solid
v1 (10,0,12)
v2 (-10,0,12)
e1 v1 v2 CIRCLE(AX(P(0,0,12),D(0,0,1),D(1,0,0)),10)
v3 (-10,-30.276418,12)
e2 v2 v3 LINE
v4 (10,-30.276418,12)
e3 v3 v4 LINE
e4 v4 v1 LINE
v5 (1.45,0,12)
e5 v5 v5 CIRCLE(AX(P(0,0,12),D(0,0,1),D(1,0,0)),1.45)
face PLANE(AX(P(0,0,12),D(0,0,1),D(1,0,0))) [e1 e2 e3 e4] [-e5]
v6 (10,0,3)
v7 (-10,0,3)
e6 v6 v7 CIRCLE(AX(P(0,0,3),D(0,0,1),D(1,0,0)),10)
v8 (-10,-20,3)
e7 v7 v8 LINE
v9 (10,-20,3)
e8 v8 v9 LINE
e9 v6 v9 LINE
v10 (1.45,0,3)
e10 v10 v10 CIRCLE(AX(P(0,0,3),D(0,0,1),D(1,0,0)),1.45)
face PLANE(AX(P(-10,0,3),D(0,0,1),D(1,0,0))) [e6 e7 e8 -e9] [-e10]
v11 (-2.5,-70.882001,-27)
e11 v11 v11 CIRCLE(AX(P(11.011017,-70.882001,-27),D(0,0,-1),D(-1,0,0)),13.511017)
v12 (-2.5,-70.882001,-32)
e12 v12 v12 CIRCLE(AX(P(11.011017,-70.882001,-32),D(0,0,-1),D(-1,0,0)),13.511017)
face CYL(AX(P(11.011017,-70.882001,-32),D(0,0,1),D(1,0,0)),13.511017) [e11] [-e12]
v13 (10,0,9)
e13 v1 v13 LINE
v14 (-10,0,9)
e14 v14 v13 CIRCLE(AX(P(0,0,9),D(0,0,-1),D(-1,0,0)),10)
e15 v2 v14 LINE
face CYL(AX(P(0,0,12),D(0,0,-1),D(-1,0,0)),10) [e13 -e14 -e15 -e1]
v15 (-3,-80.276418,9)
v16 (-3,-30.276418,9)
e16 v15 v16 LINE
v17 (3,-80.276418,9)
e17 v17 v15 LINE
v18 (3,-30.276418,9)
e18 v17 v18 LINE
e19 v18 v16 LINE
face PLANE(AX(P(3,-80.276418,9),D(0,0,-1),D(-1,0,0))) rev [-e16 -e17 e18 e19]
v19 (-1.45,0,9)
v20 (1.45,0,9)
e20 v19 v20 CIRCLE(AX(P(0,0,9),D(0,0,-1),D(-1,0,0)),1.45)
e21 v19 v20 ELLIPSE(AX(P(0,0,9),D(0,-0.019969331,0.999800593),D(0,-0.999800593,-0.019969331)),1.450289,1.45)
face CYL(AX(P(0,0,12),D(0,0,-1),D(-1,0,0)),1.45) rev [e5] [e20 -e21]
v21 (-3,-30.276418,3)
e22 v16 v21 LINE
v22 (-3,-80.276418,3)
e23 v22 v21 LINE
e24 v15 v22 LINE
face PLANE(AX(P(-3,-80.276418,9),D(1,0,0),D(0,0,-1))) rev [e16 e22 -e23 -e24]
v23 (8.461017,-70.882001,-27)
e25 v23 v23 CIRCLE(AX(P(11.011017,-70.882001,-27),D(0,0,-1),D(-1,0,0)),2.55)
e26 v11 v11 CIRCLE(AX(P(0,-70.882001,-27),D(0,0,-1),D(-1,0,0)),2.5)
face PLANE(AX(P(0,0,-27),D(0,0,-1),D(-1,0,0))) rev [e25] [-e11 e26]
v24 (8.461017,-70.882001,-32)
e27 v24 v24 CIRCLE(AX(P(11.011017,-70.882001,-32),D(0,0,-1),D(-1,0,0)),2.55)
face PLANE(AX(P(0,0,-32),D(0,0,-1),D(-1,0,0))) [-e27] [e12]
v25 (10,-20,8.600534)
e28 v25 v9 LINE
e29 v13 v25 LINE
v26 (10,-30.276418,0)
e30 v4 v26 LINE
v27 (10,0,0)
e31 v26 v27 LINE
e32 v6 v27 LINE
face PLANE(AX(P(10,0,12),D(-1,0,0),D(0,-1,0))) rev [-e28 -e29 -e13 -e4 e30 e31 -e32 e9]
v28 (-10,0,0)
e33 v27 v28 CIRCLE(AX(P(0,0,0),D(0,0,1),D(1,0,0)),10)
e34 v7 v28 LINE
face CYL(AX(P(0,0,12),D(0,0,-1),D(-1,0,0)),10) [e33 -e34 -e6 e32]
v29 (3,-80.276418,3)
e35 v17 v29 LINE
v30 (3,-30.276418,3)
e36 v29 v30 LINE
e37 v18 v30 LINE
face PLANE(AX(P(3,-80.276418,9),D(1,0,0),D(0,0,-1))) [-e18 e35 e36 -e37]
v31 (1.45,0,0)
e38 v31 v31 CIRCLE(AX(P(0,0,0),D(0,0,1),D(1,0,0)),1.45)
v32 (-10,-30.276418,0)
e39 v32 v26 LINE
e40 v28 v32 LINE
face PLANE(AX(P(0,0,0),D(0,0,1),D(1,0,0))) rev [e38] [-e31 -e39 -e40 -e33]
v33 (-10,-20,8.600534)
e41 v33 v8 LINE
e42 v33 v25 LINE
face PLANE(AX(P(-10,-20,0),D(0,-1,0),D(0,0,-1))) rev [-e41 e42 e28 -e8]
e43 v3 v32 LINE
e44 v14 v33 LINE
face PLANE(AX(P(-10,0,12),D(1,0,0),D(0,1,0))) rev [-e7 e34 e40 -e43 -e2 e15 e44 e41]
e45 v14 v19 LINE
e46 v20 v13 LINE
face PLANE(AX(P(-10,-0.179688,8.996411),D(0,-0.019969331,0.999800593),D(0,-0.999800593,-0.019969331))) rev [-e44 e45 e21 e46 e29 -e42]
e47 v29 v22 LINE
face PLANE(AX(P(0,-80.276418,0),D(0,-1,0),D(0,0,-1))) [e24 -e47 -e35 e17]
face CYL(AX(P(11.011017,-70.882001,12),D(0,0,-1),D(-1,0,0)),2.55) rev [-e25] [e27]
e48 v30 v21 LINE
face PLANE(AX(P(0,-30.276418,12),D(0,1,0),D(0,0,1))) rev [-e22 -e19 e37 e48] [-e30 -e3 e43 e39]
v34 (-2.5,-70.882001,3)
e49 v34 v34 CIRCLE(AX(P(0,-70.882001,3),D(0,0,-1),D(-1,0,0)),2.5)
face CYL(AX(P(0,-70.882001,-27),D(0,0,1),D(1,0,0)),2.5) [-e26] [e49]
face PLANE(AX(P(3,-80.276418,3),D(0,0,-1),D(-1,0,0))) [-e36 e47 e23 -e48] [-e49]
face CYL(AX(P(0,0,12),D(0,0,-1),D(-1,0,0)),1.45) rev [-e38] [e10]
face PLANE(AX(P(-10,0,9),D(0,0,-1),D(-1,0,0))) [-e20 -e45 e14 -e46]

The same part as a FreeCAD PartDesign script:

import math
import FreeCAD as App
import Part
import Sketcher

V = App.Vector

doc = App.newDocument("Part")
body = doc.addObject("PartDesign::Body", "Body")

# Sketch on XY plane
sketch1 = body.newObject("Sketcher::SketchObject", "Sketch")
sketch1.AttachmentSupport = (doc.getObject("XY_Plane"), [""])
sketch1.MapMode = "FlatFace"
sketch1.addGeometry(Part.LineSegment(V(-10, 0, 0), V(-10, -30.276418, 0)), False)
sketch1.addGeometry(Part.LineSegment(V(-10, -30.276418, 0), V(10, -30.276418, 0)), False)
sketch1.addGeometry(Part.LineSegment(V(10, -30.276418, 0), V(10, 0, 0)), False)
sketch1.addGeometry(Part.ArcOfCircle(Part.Circle(V(0, 0, 0), V(0, 0, 1), 10), math.radians(0), math.radians(180)), False)
sketch1.addGeometry(Part.Circle(V(0, 0, 0), V(0, 0, 1), 1.45), False)
sketch1.addConstraint(Sketcher.Constraint("Coincident", 0, 2, 1, 1))
sketch1.addConstraint(Sketcher.Constraint("Coincident", 1, 2, 2, 1))
sketch1.addConstraint(Sketcher.Constraint("Tangent", 2, 2, 3, 1))
sketch1.addConstraint(Sketcher.Constraint("Tangent", 3, 2, 0, 1))
sketch1.addConstraint(Sketcher.Constraint("Vertical", 0))
sketch1.addConstraint(Sketcher.Constraint("Horizontal", 1))
sketch1.addConstraint(Sketcher.Constraint("Vertical", 2))
sketch1.addConstraint(Sketcher.Constraint("Coincident", 3, 3, -1, 1))
sketch1.addConstraint(Sketcher.Constraint("Coincident", 4, 3, -1, 1))
sketch1.addConstraint(Sketcher.Constraint("Radius", 3, 10.0))
sketch1.addConstraint(Sketcher.Constraint("Diameter", 4, 2.9))
sketch1.addConstraint(Sketcher.Constraint("DistanceY", 0, 2, 0, 1, 30.276418))
pad1 = body.newObject("PartDesign::Pad", "Pad")
pad1.Profile = sketch1
pad1.Length = 12

# Sketch on YZ plane
sketch2 = body.newObject("Sketcher::SketchObject", "Sketch001")
sketch2.AttachmentSupport = (doc.getObject("YZ_Plane"), [""])
sketch2.MapMode = "FlatFace"
sketch2.AttachmentOffset = App.Placement(V(0, 0, 10), App.Rotation())
sketch2.addGeometry(Part.LineSegment(V(15.780779, 3, 0), V(15.780779, 9, 0)), False)
sketch2.addGeometry(Part.LineSegment(V(15.780779, 9, 0), V(0, 9, 0)), False)
sketch2.addGeometry(Part.LineSegment(V(0, 9, 0), V(-20, 8.600534, 0)), False)
sketch2.addGeometry(Part.LineSegment(V(-20, 8.600534, 0), V(-20, 3, 0)), False)
sketch2.addGeometry(Part.LineSegment(V(-20, 3, 0), V(15.780779, 3, 0)), False)
sketch2.addConstraint(Sketcher.Constraint("Coincident", 0, 2, 1, 1))
sketch2.addConstraint(Sketcher.Constraint("Coincident", 1, 2, 2, 1))
sketch2.addConstraint(Sketcher.Constraint("Coincident", 2, 2, 3, 1))
sketch2.addConstraint(Sketcher.Constraint("Coincident", 3, 2, 4, 1))
sketch2.addConstraint(Sketcher.Constraint("Coincident", 4, 2, 0, 1))
sketch2.addConstraint(Sketcher.Constraint("Vertical", 0))
sketch2.addConstraint(Sketcher.Constraint("Horizontal", 1))
sketch2.addConstraint(Sketcher.Constraint("Vertical", 3))
sketch2.addConstraint(Sketcher.Constraint("Horizontal", 4))
sketch2.addConstraint(Sketcher.Constraint("PointOnObject", 1, 2, -2))
sketch2.addConstraint(Sketcher.Constraint("DistanceY", 0, 1, 0, 2, 6.0))
sketch2.addConstraint(Sketcher.Constraint("DistanceY", -1, 1, 0, 2, 9.0))
sketch2.addConstraint(Sketcher.Constraint("DistanceX", 2, 2, -1, 1, 20.0))
sketch2.addConstraint(Sketcher.Constraint("DistanceX", 1, 2, 1, 1, 15.780779))
sketch2.addConstraint(Sketcher.Constraint("Distance", 2, 20.003989))
pocket1 = body.newObject("PartDesign::Pocket", "Pocket")
pocket1.Profile = sketch2
pocket1.Type = "ThroughAll"

# Sketch on XZ plane
sketch3 = body.newObject("Sketcher::SketchObject", "Sketch002")
sketch3.AttachmentSupport = (doc.getObject("XZ_Plane"), [""])
sketch3.MapMode = "FlatFace"
sketch3.AttachmentOffset = App.Placement(V(0, 0, 30.276418), App.Rotation())
sketch3.addGeometry(Part.LineSegment(V(-3, 9, 0), V(-3, 3, 0)), False)
sketch3.addGeometry(Part.LineSegment(V(-3, 3, 0), V(3, 3, 0)), False)
sketch3.addGeometry(Part.LineSegment(V(3, 3, 0), V(3, 9, 0)), False)
sketch3.addGeometry(Part.LineSegment(V(3, 9, 0), V(-3, 9, 0)), False)
sketch3.addConstraint(Sketcher.Constraint("Coincident", 0, 2, 1, 1))
sketch3.addConstraint(Sketcher.Constraint("Coincident", 1, 2, 2, 1))
sketch3.addConstraint(Sketcher.Constraint("Coincident", 2, 2, 3, 1))
sketch3.addConstraint(Sketcher.Constraint("Coincident", 3, 2, 0, 1))
sketch3.addConstraint(Sketcher.Constraint("Vertical", 0))
sketch3.addConstraint(Sketcher.Constraint("Horizontal", 1))
sketch3.addConstraint(Sketcher.Constraint("Vertical", 2))
sketch3.addConstraint(Sketcher.Constraint("Horizontal", 3))
sketch3.addConstraint(Sketcher.Constraint("Equal", 3, 0))
sketch3.addConstraint(Sketcher.Constraint("DistanceX", 1, 1, 1, 2, 6.0))
sketch3.addConstraint(Sketcher.Constraint("DistanceX", 0, 2, -1, 1, 3.0))
sketch3.addConstraint(Sketcher.Constraint("DistanceY", -1, 1, 0, 2, 3.0))
pad2 = body.newObject("PartDesign::Pad", "Pad001")
pad2.Profile = sketch3
pad2.Length = 50

# Sketch on XY plane
sketch4 = body.newObject("Sketcher::SketchObject", "Sketch003")
sketch4.AttachmentSupport = (doc.getObject("XY_Plane"), [""])
sketch4.MapMode = "FlatFace"
sketch4.AttachmentOffset = App.Placement(V(0, 0, 3), App.Rotation())
sketch4.addGeometry(Part.Circle(V(0, -70.882001, 0), V(0, 0, 1), 2.5), False)
sketch4.addConstraint(Sketcher.Constraint("PointOnObject", 0, 3, -2))
sketch4.addConstraint(Sketcher.Constraint("Diameter", 0, 5.0))
sketch4.addConstraint(Sketcher.Constraint("DistanceY", 0, 3, -1, 1, 70.882001))
pad3 = body.newObject("PartDesign::Pad", "Pad002")
pad3.Profile = sketch4
pad3.Length = 30
pad3.Reversed = True

# Sketch on XY plane
sketch5 = body.newObject("Sketcher::SketchObject", "Sketch004")
sketch5.AttachmentSupport = (doc.getObject("XY_Plane"), [""])
sketch5.MapMode = "FlatFace"
sketch5.AttachmentOffset = App.Placement(V(0, 0, -27), App.Rotation())
sketch5.addGeometry(Part.Circle(V(11.011017, -70.882001, 0), V(0, 0, 1), 13.511017), False)
sketch5.addConstraint(Sketcher.Constraint("Diameter", 0, 27.022035))
sketch5.addConstraint(Sketcher.Constraint("DistanceY", 0, 3, -1, 1, 70.882001))
sketch5.addConstraint(Sketcher.Constraint("DistanceX", -1, 1, 0, 3, 11.011017))
pad4 = body.newObject("PartDesign::Pad", "Pad003")
pad4.Profile = sketch5
pad4.Length = 5
pad4.Reversed = True

# Sketch on XY plane
sketch6 = body.newObject("Sketcher::SketchObject", "Sketch005")
sketch6.AttachmentSupport = (doc.getObject("XY_Plane"), [""])
sketch6.MapMode = "FlatFace"
sketch6.AttachmentOffset = App.Placement(V(0, 0, -32), App.Rotation())
sketch6.addGeometry(Part.Circle(V(11.011017, -70.882001, 0), V(0, 0, 1), 2.55), False)
sketch6.addConstraint(Sketcher.Constraint("Diameter", 0, 5.1))
sketch6.addConstraint(Sketcher.Constraint("DistanceY", 0, 3, -1, 1, 70.882001))
sketch6.addConstraint(Sketcher.Constraint("DistanceX", -1, 1, 0, 3, 11.011017))
pocket2 = body.newObject("PartDesign::Pocket", "Pocket001")
pocket2.Profile = sketch6
pocket2.Type = "ThroughAll"
pocket2.Reversed = True

doc.recompute()
